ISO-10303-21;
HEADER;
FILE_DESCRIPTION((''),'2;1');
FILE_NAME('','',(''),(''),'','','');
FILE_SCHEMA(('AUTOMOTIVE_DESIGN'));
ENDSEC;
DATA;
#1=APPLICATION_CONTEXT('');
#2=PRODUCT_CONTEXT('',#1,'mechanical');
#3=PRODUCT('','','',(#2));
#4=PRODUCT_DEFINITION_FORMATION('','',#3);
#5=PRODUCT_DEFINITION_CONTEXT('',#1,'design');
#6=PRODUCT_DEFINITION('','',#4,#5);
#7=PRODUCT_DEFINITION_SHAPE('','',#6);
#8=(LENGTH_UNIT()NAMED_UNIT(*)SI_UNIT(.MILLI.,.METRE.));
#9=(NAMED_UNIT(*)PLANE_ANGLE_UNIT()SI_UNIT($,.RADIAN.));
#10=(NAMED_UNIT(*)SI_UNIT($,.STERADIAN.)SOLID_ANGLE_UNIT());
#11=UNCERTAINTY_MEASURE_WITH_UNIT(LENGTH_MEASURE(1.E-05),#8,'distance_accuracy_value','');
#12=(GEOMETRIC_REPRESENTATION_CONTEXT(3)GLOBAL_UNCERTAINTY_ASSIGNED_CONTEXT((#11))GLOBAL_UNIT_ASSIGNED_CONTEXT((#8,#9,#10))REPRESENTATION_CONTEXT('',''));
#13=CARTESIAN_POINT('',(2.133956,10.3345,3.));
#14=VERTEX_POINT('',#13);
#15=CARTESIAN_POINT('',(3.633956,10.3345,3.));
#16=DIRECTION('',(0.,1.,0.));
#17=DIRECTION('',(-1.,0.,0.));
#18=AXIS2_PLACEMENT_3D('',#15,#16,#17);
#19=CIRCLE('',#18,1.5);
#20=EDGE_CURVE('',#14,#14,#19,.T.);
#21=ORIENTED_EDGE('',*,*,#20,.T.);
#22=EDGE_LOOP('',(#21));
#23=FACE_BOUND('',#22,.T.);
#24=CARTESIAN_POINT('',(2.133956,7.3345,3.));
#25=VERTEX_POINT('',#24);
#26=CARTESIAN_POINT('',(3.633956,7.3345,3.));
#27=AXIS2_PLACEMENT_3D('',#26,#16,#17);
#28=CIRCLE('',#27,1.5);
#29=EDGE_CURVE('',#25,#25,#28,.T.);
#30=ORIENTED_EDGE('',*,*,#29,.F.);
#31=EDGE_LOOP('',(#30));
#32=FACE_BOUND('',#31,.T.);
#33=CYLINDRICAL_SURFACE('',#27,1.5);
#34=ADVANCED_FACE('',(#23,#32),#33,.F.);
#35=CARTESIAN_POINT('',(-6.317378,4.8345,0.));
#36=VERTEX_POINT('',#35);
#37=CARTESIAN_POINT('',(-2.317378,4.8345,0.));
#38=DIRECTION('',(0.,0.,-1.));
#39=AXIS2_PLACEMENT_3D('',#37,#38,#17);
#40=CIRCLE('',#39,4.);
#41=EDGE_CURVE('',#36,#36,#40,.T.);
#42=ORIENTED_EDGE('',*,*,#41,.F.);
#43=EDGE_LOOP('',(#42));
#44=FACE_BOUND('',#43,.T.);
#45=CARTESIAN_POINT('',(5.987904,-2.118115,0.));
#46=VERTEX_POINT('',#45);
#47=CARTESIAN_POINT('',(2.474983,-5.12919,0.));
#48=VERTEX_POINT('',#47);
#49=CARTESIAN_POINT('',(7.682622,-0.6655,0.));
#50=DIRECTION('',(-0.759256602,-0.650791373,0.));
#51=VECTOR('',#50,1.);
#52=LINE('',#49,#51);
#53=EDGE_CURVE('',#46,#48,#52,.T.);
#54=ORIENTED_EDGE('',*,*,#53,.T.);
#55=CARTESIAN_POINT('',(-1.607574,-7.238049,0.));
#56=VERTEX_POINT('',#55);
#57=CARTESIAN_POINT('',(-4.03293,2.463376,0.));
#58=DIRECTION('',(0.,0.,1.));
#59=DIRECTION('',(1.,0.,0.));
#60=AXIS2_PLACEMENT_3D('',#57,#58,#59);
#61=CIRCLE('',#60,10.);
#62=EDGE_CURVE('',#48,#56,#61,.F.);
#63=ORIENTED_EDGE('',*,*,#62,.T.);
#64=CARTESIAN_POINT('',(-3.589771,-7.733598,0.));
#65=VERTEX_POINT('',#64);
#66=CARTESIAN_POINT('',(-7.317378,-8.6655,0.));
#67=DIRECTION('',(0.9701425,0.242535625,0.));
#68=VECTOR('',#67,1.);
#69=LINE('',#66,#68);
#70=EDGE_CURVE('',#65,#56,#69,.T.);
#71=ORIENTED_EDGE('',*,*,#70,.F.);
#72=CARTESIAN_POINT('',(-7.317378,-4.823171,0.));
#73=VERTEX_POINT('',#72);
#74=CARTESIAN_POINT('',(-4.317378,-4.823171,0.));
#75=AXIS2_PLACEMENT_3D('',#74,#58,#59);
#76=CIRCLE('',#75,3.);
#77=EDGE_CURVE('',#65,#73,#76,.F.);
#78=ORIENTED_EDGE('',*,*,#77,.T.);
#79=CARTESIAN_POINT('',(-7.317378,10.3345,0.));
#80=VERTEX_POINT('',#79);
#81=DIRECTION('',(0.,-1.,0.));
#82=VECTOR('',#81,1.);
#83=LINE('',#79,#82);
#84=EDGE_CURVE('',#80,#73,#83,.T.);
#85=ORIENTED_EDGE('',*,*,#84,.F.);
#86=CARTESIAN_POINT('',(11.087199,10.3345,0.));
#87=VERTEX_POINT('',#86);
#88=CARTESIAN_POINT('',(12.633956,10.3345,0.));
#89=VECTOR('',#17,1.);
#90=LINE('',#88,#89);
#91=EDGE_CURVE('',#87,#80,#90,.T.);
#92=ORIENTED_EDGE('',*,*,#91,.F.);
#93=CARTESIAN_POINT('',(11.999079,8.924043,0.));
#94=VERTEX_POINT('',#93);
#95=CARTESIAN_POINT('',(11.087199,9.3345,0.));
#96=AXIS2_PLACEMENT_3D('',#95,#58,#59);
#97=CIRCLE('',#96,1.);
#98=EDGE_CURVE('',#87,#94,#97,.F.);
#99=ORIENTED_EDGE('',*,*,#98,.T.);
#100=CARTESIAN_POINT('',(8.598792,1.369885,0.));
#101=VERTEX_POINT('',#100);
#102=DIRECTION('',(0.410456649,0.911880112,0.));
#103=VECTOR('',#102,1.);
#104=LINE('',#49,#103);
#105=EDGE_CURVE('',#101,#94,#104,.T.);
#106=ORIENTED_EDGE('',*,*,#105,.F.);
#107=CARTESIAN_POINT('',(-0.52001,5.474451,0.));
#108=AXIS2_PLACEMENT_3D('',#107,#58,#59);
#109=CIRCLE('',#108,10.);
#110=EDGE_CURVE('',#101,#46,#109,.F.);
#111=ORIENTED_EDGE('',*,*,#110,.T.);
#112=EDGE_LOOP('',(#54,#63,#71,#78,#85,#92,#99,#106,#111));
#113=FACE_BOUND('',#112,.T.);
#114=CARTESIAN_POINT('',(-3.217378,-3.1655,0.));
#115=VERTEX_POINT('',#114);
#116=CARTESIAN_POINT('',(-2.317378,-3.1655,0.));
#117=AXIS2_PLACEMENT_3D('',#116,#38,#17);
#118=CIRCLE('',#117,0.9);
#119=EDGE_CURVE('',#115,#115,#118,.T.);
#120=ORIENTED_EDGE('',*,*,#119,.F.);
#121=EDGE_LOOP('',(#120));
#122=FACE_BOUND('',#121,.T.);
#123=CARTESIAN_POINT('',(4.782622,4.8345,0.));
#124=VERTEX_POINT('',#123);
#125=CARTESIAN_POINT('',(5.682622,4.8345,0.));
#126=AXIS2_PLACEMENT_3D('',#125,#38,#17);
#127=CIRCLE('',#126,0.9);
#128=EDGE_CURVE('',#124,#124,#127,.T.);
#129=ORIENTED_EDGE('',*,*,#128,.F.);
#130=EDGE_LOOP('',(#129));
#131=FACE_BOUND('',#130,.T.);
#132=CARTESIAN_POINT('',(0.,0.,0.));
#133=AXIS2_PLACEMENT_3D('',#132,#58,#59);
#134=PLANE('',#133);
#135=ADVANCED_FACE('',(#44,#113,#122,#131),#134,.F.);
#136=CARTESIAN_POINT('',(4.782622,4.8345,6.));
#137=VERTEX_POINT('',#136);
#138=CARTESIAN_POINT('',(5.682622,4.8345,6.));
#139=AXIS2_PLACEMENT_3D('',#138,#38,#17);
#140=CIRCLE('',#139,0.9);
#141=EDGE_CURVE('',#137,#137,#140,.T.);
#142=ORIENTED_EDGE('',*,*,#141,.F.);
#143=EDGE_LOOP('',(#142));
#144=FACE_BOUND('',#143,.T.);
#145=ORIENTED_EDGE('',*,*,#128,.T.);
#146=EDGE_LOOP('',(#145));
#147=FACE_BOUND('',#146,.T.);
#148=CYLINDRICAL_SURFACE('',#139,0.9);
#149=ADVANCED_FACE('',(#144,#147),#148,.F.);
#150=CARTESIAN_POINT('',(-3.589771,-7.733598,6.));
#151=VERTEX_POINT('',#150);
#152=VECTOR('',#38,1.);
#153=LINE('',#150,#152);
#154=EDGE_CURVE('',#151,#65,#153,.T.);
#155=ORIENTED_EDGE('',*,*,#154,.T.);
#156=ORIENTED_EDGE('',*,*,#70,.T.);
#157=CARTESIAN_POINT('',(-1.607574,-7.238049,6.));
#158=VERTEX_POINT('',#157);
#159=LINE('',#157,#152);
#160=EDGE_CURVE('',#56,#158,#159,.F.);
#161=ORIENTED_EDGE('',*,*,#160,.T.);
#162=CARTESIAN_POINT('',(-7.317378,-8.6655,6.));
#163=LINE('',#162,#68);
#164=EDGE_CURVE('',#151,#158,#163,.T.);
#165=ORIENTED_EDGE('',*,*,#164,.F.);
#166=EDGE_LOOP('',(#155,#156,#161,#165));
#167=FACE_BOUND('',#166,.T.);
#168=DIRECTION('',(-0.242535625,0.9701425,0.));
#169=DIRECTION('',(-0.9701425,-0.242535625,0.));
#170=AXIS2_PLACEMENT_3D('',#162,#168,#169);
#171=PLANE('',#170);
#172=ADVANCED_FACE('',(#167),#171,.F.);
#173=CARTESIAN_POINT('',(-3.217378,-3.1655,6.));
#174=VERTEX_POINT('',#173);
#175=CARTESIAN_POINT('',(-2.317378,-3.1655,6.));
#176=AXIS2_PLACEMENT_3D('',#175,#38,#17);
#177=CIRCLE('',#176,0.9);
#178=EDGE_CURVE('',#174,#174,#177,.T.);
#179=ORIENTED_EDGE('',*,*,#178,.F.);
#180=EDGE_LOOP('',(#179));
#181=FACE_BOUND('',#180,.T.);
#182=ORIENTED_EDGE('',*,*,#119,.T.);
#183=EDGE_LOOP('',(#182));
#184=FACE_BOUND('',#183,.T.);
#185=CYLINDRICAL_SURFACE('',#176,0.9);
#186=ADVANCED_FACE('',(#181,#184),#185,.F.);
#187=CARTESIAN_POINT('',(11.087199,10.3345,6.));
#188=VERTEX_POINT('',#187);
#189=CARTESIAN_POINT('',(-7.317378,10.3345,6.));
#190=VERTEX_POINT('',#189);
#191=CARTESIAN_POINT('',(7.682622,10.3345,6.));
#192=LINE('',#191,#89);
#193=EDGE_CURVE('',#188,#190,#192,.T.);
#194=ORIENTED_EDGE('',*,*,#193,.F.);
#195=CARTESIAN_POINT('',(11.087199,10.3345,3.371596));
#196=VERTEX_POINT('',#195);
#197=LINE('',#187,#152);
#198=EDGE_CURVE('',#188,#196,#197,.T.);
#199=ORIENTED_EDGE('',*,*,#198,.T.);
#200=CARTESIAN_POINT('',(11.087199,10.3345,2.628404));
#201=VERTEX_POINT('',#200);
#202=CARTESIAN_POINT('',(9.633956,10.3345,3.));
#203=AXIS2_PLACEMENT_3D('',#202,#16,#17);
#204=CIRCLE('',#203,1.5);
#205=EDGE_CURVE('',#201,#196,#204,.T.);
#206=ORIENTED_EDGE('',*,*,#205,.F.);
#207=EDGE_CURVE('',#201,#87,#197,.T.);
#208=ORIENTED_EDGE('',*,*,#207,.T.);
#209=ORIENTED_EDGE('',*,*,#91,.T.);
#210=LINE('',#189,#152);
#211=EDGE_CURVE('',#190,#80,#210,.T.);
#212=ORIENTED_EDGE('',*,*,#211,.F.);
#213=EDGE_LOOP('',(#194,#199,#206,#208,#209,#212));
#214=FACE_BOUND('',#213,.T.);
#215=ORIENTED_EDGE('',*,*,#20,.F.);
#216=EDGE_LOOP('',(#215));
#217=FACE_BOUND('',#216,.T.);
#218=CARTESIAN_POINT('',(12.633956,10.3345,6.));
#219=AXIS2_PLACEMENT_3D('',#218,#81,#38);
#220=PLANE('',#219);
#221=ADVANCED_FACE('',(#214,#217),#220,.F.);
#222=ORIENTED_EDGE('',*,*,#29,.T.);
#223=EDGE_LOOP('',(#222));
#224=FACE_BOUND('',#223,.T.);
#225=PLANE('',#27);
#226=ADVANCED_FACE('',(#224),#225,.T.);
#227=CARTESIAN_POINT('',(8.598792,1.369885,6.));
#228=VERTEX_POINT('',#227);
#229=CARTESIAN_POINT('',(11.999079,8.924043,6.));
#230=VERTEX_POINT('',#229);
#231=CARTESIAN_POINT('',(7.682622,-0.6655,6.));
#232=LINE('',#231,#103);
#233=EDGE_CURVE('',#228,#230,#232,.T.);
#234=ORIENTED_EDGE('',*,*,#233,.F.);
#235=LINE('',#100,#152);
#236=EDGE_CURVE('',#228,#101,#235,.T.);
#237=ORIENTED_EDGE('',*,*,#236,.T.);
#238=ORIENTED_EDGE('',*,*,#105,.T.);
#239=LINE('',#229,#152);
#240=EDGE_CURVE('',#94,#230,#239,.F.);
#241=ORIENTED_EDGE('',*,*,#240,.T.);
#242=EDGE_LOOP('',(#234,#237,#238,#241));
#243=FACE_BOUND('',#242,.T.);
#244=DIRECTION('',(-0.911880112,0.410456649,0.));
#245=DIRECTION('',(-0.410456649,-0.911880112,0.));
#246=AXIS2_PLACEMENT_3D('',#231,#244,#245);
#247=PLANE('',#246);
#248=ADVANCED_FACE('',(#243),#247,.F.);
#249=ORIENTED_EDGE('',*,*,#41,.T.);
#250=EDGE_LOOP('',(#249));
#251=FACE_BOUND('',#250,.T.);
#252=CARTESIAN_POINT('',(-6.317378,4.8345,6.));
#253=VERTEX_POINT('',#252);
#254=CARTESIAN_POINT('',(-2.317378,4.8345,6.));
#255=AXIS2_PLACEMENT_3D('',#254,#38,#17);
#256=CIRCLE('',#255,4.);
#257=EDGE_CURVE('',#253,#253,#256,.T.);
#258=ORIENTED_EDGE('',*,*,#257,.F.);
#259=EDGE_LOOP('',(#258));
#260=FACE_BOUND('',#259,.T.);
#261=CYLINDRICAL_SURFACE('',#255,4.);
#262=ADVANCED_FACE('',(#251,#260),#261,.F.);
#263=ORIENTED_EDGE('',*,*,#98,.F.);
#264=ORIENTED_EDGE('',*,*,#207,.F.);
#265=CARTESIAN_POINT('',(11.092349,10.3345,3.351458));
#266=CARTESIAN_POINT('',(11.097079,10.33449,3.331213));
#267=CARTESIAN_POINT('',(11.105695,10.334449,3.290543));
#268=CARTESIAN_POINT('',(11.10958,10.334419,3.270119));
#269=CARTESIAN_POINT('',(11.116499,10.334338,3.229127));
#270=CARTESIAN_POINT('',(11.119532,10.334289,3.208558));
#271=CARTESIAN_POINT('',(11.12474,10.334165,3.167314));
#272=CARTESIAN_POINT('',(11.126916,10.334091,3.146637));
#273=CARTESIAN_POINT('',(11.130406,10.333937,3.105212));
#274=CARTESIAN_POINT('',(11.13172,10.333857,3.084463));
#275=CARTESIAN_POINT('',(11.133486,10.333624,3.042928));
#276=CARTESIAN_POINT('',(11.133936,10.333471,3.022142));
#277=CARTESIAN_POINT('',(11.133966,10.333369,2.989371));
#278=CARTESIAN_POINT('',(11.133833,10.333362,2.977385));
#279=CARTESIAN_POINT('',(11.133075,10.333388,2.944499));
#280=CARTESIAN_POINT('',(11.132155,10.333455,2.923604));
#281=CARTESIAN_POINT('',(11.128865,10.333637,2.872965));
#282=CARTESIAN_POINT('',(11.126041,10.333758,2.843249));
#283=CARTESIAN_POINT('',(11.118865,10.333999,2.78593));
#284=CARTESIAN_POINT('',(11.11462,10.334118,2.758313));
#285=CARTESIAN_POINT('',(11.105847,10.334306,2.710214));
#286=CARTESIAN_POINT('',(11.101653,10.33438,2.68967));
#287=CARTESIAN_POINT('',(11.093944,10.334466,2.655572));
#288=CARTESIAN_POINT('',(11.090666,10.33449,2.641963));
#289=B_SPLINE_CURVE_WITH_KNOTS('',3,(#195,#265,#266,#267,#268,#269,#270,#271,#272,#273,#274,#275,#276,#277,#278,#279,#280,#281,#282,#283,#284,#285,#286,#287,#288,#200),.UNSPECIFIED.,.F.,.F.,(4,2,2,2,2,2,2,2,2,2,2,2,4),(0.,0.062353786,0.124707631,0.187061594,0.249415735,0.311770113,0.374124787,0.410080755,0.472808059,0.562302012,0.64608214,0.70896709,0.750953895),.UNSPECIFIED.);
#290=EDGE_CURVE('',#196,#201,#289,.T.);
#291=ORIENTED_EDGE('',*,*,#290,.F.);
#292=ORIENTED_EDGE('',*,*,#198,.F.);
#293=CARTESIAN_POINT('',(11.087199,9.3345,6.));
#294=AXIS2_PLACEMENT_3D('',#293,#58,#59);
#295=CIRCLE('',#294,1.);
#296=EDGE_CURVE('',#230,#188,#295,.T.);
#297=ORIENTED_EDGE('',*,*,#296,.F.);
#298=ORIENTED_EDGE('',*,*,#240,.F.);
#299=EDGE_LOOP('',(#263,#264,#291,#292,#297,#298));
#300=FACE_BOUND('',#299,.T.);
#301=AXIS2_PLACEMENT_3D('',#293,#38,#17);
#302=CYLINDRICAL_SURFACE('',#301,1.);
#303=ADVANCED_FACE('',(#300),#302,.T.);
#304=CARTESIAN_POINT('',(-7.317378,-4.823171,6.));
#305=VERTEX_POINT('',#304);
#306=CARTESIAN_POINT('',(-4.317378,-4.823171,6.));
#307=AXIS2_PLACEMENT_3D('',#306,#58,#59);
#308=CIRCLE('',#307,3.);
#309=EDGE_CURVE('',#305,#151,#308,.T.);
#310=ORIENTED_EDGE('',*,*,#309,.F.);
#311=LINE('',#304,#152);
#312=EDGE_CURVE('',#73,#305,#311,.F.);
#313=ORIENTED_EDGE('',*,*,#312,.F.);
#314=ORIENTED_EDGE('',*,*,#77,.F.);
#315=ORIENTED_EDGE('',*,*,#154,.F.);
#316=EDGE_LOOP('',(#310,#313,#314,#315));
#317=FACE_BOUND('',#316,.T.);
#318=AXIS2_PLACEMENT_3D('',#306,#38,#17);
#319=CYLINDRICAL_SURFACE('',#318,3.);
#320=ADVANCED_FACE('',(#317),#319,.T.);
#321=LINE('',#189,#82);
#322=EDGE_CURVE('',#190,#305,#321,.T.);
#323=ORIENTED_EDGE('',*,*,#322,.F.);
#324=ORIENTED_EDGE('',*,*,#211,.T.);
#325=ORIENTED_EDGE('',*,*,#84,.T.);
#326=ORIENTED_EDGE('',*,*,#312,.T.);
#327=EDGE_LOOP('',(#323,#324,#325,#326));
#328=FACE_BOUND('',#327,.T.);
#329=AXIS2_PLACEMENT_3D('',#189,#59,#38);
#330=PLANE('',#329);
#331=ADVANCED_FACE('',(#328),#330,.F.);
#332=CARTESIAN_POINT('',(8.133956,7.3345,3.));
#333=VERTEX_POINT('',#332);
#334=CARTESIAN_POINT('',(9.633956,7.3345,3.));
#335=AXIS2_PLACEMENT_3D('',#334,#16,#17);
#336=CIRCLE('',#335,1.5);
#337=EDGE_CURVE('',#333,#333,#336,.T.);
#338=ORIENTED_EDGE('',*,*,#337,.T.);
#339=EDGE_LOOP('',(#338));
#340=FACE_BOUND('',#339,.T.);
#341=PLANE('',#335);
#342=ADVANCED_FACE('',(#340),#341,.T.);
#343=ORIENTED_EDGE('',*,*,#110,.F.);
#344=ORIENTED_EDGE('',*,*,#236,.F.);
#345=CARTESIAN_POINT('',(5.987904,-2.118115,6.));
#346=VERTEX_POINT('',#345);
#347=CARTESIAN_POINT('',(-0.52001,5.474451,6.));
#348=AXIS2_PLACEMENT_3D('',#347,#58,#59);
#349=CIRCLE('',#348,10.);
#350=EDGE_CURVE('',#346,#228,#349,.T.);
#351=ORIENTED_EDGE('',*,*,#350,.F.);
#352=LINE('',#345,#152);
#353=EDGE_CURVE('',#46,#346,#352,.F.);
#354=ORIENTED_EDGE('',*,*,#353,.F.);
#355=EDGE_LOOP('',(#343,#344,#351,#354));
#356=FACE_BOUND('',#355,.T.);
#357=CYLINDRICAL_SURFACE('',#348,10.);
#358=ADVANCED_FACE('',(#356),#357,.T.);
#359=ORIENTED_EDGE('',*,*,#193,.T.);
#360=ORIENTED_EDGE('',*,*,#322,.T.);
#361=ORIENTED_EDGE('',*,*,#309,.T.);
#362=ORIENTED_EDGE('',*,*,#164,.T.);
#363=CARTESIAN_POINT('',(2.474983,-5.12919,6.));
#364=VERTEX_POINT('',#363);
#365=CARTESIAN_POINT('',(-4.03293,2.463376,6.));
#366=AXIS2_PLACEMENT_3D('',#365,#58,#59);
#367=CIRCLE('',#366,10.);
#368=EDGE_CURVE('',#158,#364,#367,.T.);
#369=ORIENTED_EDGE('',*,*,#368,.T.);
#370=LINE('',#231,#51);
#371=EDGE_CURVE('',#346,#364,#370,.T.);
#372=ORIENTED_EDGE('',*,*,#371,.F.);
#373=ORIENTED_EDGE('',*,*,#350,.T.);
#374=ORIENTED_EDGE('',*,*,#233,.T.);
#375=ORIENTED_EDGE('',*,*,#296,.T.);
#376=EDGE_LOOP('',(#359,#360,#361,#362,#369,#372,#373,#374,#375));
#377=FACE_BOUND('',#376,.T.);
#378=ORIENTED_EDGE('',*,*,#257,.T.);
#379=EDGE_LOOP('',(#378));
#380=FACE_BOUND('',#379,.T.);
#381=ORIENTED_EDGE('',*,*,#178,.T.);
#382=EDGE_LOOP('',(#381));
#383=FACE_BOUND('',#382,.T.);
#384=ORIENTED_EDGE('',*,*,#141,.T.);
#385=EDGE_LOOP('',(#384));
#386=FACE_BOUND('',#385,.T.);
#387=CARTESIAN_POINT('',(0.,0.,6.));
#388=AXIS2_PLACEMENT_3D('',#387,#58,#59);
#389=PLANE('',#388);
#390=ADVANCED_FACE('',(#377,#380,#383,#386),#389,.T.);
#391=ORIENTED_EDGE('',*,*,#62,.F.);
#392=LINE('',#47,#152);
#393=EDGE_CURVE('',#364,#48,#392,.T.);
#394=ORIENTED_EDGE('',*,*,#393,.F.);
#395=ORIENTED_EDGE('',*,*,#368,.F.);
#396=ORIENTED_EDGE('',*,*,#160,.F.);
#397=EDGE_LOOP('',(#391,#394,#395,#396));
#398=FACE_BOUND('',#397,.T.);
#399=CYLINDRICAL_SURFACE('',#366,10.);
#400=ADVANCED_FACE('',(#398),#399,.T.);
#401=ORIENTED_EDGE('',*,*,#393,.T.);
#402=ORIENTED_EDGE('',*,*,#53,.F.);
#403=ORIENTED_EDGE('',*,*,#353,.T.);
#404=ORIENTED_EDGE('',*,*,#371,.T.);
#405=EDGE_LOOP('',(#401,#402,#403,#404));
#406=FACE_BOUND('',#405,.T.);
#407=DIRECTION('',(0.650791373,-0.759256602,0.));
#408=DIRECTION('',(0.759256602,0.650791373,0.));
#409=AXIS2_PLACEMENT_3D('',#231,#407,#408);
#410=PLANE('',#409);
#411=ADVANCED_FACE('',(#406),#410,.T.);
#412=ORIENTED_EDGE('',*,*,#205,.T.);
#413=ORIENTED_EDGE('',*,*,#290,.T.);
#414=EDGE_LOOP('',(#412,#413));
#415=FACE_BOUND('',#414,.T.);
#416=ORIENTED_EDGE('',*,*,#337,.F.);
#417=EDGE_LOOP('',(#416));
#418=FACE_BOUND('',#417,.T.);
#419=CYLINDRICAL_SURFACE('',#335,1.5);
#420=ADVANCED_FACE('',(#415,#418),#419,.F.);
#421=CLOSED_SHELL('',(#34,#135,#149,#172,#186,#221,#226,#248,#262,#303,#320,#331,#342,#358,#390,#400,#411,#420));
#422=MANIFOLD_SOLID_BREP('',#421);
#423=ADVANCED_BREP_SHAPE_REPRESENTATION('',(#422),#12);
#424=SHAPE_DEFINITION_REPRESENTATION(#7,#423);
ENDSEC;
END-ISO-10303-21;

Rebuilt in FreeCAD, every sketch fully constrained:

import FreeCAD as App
import Part
import Sketcher

V = App.Vector


def edges_at(feature, points):
    """Names of the edges that pass closest to the given points."""
    edges = feature.Shape.Edges
    near = lambda p: min(range(len(edges)), key=lambda i: edges[i].distToShape(Part.Vertex(*p))[0])
    return sorted({f"Edge{near(p) + 1}" for p in points})

doc = App.newDocument("Part")
params = doc.addObject("Spreadsheet::Sheet", "Params")
for row, (alias, value) in enumerate([
    ("sketch1_height", "19 mm"),
    ("pad1_length", "6 mm"),
    ("sketch2_diameter", "8 mm"),
    ("sketch2_diameter2", "1.8 mm"),
    ("fillet_radius", "10 mm"),
    ("fillet2_radius", "3 mm"),
    ("fillet3_radius", "1 mm"),
    ("sketch3_diameter", "3 mm"),
    ("pocket2_length", "3 mm"),
], start=1):
    params.set(f"A{row}", alias)
    params.set(f"B{row}", "=" + value)
    params.setAlias(f"B{row}", alias)

body = doc.addObject("PartDesign::Body", "Body")

sketch1 = body.newObject("Sketcher::SketchObject", "Sketch")
sketch1.AttachmentSupport = (doc.getObject("XY_Plane"), [""])
sketch1.MapMode = "FlatFace"
sketch1.addGeometry([
    Part.LineSegment(V(-7, -9, 0), V(1, -7, 0)),
    Part.LineSegment(V(1, -7, 0), V(8, -1, 0)),
    Part.LineSegment(V(8, -1, 0), V(13, 10, 0)),
    Part.LineSegment(V(13, 10, 0), V(-7, 10, 0)),
    Part.LineSegment(V(-7, 10, 0), V(-7, -9, 0)),
], False)
sketch1.addConstraint([
    Sketcher.Constraint("Coincident", 0, 2, 1, 1),
    Sketcher.Constraint("Coincident", 1, 2, 2, 1),
    Sketcher.Constraint("Coincident", 2, 2, 3, 1),
    Sketcher.Constraint("Coincident", 3, 2, 4, 1),
    Sketcher.Constraint("Coincident", 4, 2, 0, 1),
    Sketcher.Constraint("Horizontal", 3),
    Sketcher.Constraint("Vertical", 4),
    Sketcher.Constraint("DistanceY", 4, 2, 4, 1, 19.0),
    Sketcher.Constraint("DistanceX", 0, 2, 1, 2, 7.0),
    Sketcher.Constraint("DistanceY", 0, 2, 1, 2, 6.0),
    Sketcher.Constraint("DistanceY", 1, 2, 2, 2, 11.0),
    Sketcher.Constraint("DistanceX", 3, 2, 1, 2, 15.0),
    Sketcher.Constraint("DistanceY", 0, 2, -1, 1, 6.6655),
    Sketcher.Constraint("Distance", 2, 12.062989),
    Sketcher.Constraint("DistanceX", -1, 1, 0, 2, 0.682622),
])
sketch1.setExpression("Constraints[7]", "Params.sketch1_height")
pad1 = body.newObject("PartDesign::Pad", "Pad")
pad1.Profile = sketch1
pad1.setExpression("Length", "Params.pad1_length")

sketch2 = body.newObject("Sketcher::SketchObject", "Sketch001")
sketch2.AttachmentSupport = (doc.getObject("XY_Plane"), [""])
sketch2.MapMode = "FlatFace"
sketch2.addGeometry([
    Part.Circle(V(-2.3, 4.8, 0), V(0, 0, 1), 4),
    Part.Circle(V(5.7, 4.8, 0), V(0, 0, 1), 0.9),
    Part.Circle(V(-2.3, -3.2, 0), V(0, 0, 1), 0.9),
], False)
sketch2.addConstraint([
    Sketcher.Constraint("Equal", 1, 2),
    Sketcher.Constraint("Horizontal", 0, 3, 1, 3),
    Sketcher.Constraint("Vertical", 0, 3, 2, 3),
    Sketcher.Constraint("Diameter", 0, 8.0),
    Sketcher.Constraint("Diameter", 1, 1.8),
    Sketcher.Constraint("DistanceX", 0, 3, 1, 3, 8.0),
    Sketcher.Constraint("DistanceY", 2, 3, 0, 3, 8.0),
    Sketcher.Constraint("DistanceY", -1, 1, 0, 3, 4.8345),
    Sketcher.Constraint("DistanceX", 0, 3, -1, 1, 2.317378),
])
sketch2.setExpression("Constraints[3]", "Params.sketch2_diameter")
sketch2.setExpression("Constraints[4]", "Params.sketch2_diameter2")
pocket1 = body.newObject("PartDesign::Pocket", "Pocket")
pocket1.Profile = sketch2
pocket1.Type = "ThroughAll"
pocket1.Reversed = True
doc.recompute()

fillet = body.newObject("PartDesign::Fillet", "Fillet")
fillet.Base = (pocket1, edges_at(pocket1, [(7.683, -0.665, 3), (0.683, -6.665, 3)]))
fillet.setExpression("Radius", "Params.fillet_radius")
doc.recompute()

fillet2 = body.newObject("PartDesign::Fillet", "Fillet001")
fillet2.Base = (fillet, edges_at(fillet, [(-7.317, -8.665, 3)]))
fillet2.setExpression("Radius", "Params.fillet2_radius")
doc.recompute()

fillet3 = body.newObject("PartDesign::Fillet", "Fillet002")
fillet3.Base = (fillet2, edges_at(fillet2, [(12.634, 10.335, 3)]))
fillet3.setExpression("Radius", "Params.fillet3_radius")

sketch3 = body.newObject("Sketcher::SketchObject", "Sketch002")
sketch3.AttachmentSupport = (doc.getObject("XZ_Plane"), [""])
sketch3.MapMode = "FlatFace"
sketch3.AttachmentOffset = App.Placement(V(0, 0, -10.3345), App.Rotation())
sketch3.addGeometry([
    Part.Circle(V(3.6, 3, 0), V(0, 0, 1), 1.5),
    Part.Circle(V(9.6, 3, 0), V(0, 0, 1), 1.5),
], False)
sketch3.addConstraint([
    Sketcher.Constraint("Equal", 0, 1),
    Sketcher.Constraint("Horizontal", 0, 3, 1, 3),
    Sketcher.Constraint("Diameter", 0, 3.0),
    Sketcher.Constraint("DistanceY", -1, 1, 0, 3, 3.0),
    Sketcher.Constraint("DistanceX", 0, 3, 1, 3, 6.0),
    Sketcher.Constraint("DistanceX", -1, 1, 0, 3, 3.633956),
])
sketch3.setExpression("Constraints[2]", "Params.sketch3_diameter")
pocket2 = body.newObject("PartDesign::Pocket", "Pocket001")
pocket2.Profile = sketch3
pocket2.setExpression("Length", "Params.pocket2_length")
pocket2.Reversed = True

doc.recompute()
